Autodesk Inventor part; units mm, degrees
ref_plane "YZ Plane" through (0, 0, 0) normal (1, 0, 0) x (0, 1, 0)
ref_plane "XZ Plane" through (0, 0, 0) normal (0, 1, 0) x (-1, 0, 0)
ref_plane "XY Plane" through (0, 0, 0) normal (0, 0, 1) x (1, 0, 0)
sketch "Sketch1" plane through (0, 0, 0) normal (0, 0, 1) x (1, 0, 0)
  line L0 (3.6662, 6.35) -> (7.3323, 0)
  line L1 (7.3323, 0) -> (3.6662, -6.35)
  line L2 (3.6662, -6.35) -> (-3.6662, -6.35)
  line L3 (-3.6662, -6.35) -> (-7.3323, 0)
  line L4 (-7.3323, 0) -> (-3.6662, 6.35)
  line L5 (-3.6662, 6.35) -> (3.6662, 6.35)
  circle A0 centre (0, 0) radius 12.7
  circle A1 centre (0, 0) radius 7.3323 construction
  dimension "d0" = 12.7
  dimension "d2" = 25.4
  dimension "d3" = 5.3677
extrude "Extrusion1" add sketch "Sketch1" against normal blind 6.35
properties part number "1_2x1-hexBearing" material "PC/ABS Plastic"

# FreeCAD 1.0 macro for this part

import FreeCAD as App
import Part
import Sketcher
Q = App.Units.Quantity


def add_polygon(sketch, points):
    """Adds a closed chain of lines whose ends are joined by coincident constraints."""
    first, n = sketch.GeometryCount, len(points)
    for a, b in zip(points, points[1:] + points[:1]):
        sketch.addGeometry(Part.LineSegment(App.Vector(*a, 0), App.Vector(*b, 0)), False)
    for i in range(n):
        sketch.addConstraint(Sketcher.Constraint("Coincident", first + i, 2, first + (i + 1) % n, 1))

doc = App.newDocument("Part")
body = doc.addObject("PartDesign::Body", "Body")

sketch1 = body.newObject("Sketcher::SketchObject", "Sketch")
sketch1.AttachmentSupport = (doc.getObject("XY_Plane"), [""])
sketch1.MapMode = "FlatFace"
sketch1.addGeometry(Part.Circle(App.Vector(0, 0, 0), App.Vector(0, 0, 1), 13), False)
add_polygon(sketch1, [(-4, 6), (4, 6), (7, 0), (4, -6), (-4, -6), (-7, 0)])
sketch1.addConstraint([
    Sketcher.Constraint("Horizontal", 1),
    Sketcher.Constraint("Horizontal", 4),
    Sketcher.Constraint("Coincident", 0, 3, -1, 1),
    Sketcher.Constraint("Symmetric", 1, 2, 4, 2, -1, 1),
    Sketcher.Constraint("Symmetric", 2, 2, 5, 2, -1, 1),
    Sketcher.Constraint("PointOnObject", 2, 2, -1),
    Sketcher.Constraint("Parallel", 3, 6),
    Sketcher.Constraint("Vertical", 1, 2, 3, 2),
    Sketcher.Constraint("Diameter", 0, Q("1 in")),
    Sketcher.Constraint("DistanceY", 3, 2, 1, 2, Q("0.5 in")),
    Sketcher.Constraint("Angle", 2, Q("-60.0005 deg")),
    Sketcher.Constraint("DistanceX", 4, 2, 2, 2, Q("0.433 in")),
])
pad1 = body.newObject("PartDesign::Pad", "Pad")
pad1.Profile = sketch1
pad1.Length = Q("0.25 in")
pad1.Reversed = True

doc.recompute()
